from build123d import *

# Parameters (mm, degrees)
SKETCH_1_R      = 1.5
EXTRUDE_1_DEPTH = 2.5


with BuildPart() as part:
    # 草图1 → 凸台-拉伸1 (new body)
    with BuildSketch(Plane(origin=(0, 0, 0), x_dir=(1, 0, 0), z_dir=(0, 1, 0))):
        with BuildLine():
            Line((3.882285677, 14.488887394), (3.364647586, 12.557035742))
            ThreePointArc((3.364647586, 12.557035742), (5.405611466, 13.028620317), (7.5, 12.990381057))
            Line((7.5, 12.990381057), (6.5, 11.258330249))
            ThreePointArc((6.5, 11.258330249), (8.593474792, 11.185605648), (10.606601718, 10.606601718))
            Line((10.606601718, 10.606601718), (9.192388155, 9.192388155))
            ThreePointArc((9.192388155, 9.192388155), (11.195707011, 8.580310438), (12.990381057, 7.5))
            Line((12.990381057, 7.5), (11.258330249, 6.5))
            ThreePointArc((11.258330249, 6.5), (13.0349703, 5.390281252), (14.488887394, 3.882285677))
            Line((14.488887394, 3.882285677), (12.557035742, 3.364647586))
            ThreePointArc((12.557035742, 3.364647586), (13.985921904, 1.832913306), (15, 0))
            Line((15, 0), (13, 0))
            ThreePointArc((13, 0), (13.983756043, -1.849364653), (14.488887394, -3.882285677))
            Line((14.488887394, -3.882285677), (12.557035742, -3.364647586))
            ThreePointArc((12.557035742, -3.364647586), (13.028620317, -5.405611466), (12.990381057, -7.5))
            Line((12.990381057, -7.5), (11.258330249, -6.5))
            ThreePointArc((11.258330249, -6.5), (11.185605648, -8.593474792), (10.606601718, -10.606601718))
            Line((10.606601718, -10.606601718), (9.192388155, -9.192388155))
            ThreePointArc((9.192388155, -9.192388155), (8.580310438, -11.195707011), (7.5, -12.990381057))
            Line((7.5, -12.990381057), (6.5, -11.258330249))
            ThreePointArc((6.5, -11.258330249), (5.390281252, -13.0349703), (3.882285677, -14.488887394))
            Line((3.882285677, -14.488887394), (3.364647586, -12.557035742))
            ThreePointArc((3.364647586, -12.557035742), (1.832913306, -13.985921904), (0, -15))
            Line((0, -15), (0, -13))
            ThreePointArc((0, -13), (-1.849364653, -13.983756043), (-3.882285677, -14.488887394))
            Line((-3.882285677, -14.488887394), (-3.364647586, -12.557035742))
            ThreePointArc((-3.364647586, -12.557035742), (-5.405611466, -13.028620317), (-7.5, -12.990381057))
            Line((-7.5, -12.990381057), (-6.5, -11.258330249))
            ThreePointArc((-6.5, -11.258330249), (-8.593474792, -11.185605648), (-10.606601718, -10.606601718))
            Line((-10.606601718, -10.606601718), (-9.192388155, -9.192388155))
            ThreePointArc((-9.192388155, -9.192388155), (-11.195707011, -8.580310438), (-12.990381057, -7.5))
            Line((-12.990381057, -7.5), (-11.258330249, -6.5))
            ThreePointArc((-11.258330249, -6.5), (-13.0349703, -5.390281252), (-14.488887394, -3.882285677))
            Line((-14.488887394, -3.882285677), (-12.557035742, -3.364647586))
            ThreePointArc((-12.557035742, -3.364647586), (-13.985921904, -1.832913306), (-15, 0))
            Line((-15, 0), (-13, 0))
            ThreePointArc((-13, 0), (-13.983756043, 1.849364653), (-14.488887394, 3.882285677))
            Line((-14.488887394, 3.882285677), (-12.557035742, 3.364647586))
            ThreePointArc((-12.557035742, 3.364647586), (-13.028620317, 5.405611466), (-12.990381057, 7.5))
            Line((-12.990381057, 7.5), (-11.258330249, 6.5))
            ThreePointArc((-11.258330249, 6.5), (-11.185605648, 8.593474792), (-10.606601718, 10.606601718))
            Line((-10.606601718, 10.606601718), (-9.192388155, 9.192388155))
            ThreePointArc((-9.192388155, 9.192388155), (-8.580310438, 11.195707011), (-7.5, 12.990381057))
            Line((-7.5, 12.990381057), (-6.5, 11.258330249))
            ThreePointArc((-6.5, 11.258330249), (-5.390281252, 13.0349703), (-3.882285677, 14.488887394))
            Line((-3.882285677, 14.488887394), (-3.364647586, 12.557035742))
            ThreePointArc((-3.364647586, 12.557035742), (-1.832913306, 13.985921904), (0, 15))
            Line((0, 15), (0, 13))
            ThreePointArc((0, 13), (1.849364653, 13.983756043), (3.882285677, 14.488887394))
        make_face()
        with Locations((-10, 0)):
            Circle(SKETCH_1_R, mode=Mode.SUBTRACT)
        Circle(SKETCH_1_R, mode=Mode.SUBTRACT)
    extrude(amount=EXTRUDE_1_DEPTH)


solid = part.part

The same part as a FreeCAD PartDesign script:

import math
import FreeCAD as App
import Part
import Sketcher

V = App.Vector
Q = App.Units.Quantity

doc = App.newDocument("Part")
body = doc.addObject("PartDesign::Body", "Body")

sketch1 = body.newObject("Sketcher::SketchObject", "Sketch")
sketch1.AttachmentSupport = (doc.getObject("XZ_Plane"), [""])
sketch1.MapMode = "FlatFace"
sketch1.addGeometry([
    Part.LineSegment(V(3.364648, -12.557036, 0), V(3.882286, -14.488887, 0)),
    Part.ArcOfCircle(Part.Circle(V(4.91447, -5.991469, 0), V(0, 0, 1), 8.559879), math.radians(-125.038622), math.radians(-96.925809)),
    Part.LineSegment(V(0, -13, 0), V(0, -15, 0)),
    Part.ArcOfCircle(Part.Circle(V(3.196307, -7.059273, 0), V(0, 0, 1), 8.559879), math.radians(-140.038622), math.radians(-111.925809)),
    Part.LineSegment(V(-3.364648, -12.557036, 0), V(-3.882286, -14.488887, 0)),
    Part.ArcOfCircle(Part.Circle(V(1.260322, -7.645999, 0), V(0, 0, 1), 8.559879), math.radians(-155.038622), math.radians(-126.925809)),
    Part.LineSegment(V(-6.5, -11.25833, 0), V(-7.5, -12.990381, 0)),
    Part.ArcOfCircle(Part.Circle(V(-0.761553, -7.711664, 0), V(0, 0, 1), 8.559879), math.radians(-170.038622), math.radians(-141.925809)),
    Part.LineSegment(V(-9.192388, -9.192388, 0), V(-10.606602, -10.606602, 0)),
    Part.ArcOfCircle(Part.Circle(V(-2.731529, -7.251791, 0), V(0, 0, 1), 8.559879), math.radians(174.961378), math.radians(203.074191)),
    Part.LineSegment(V(-11.25833, -6.5, 0), V(-12.990381, -7.5, 0)),
    Part.ArcOfCircle(Part.Circle(V(-4.515356, -6.29772, 0), V(0, 0, 1), 8.559879), math.radians(159.961378), math.radians(188.074191)),
    Part.LineSegment(V(-12.557036, -3.364648, 0), V(-14.488887, -3.882286, 0)),
    Part.ArcOfCircle(Part.Circle(V(-5.991469, -4.91447, 0), V(0, 0, 1), 8.559879), math.radians(144.961378), math.radians(173.074191)),
    Part.LineSegment(V(-13, 0, 0), V(-15, 0, 0)),
    Part.ArcOfCircle(Part.Circle(V(-7.059273, -3.196307, 0), V(0, 0, 1), 8.559879), math.radians(129.961378), math.radians(158.074191)),
    Part.LineSegment(V(-12.557036, 3.364648, 0), V(-14.488887, 3.882286, 0)),
    Part.ArcOfCircle(Part.Circle(V(-7.645999, -1.260322, 0), V(0, 0, 1), 8.559879), math.radians(114.961378), math.radians(143.074191)),
    Part.LineSegment(V(-11.25833, 6.5, 0), V(-12.990381, 7.5, 0)),
    Part.ArcOfCircle(Part.Circle(V(-7.711664, 0.761553, 0), V(0, 0, 1), 8.559879), math.radians(99.961378), math.radians(128.074191)),
    Part.LineSegment(V(-9.192388, 9.192388, 0), V(-10.606602, 10.606602, 0)),
    Part.ArcOfCircle(Part.Circle(V(-7.251791, 2.731529, 0), V(0, 0, 1), 8.559879), math.radians(84.961378), math.radians(113.074191)),
    Part.LineSegment(V(-6.5, 11.25833, 0), V(-7.5, 12.990381, 0)),
    Part.ArcOfCircle(Part.Circle(V(-6.29772, 4.515356, 0), V(0, 0, 1), 8.559879), math.radians(69.961378), math.radians(98.074191)),
    Part.LineSegment(V(-3.364648, 12.557036, 0), V(-3.882286, 14.488887, 0)),
    Part.ArcOfCircle(Part.Circle(V(-4.91447, 5.991469, 0), V(0, 0, 1), 8.559879), math.radians(54.961378), math.radians(83.074191)),
    Part.LineSegment(V(0, 13, 0), V(0, 15, 0)),
    Part.ArcOfCircle(Part.Circle(V(-3.196307, 7.059273, 0), V(0, 0, 1), 8.559879), math.radians(39.961378), math.radians(68.074191)),
    Part.LineSegment(V(3.364648, 12.557036, 0), V(3.882286, 14.488887, 0)),
    Part.ArcOfCircle(Part.Circle(V(-1.260322, 7.645999, 0), V(0, 0, 1), 8.559879), math.radians(24.961378), math.radians(53.074191)),
    Part.LineSegment(V(6.5, 11.25833, 0), V(7.5, 12.990381, 0)),
    Part.ArcOfCircle(Part.Circle(V(0.761553, 7.711664, 0), V(0, 0, 1), 8.559879), math.radians(9.961378), math.radians(38.074191)),
    Part.LineSegment(V(9.192388, 9.192388, 0), V(10.606602, 10.606602, 0)),
    Part.ArcOfCircle(Part.Circle(V(2.731529, 7.251791, 0), V(0, 0, 1), 8.559879), math.radians(-5.038622), math.radians(23.074191)),
    Part.LineSegment(V(11.25833, 6.5, 0), V(12.990381, 7.5, 0)),
    Part.ArcOfCircle(Part.Circle(V(4.515356, 6.29772, 0), V(0, 0, 1), 8.559879), math.radians(-20.038622), math.radians(8.074191)),
    Part.LineSegment(V(12.557036, 3.364648, 0), V(14.488887, 3.882286, 0)),
    Part.ArcOfCircle(Part.Circle(V(5.991469, 4.91447, 0), V(0, 0, 1), 8.559879), math.radians(-35.038622), math.radians(-6.925809)),
    Part.LineSegment(V(13, 0, 0), V(15, 0, 0)),
    Part.ArcOfCircle(Part.Circle(V(7.059273, 3.196307, 0), V(0, 0, 1), 8.559879), math.radians(-50.038622), math.radians(-21.925809)),
    Part.LineSegment(V(12.557036, -3.364648, 0), V(14.488887, -3.882286, 0)),
    Part.ArcOfCircle(Part.Circle(V(7.645999, 1.260322, 0), V(0, 0, 1), 8.559879), math.radians(-65.038622), math.radians(-36.925809)),
    Part.LineSegment(V(11.25833, -6.5, 0), V(12.990381, -7.5, 0)),
    Part.ArcOfCircle(Part.Circle(V(7.711664, -0.761553, 0), V(0, 0, 1), 8.559879), math.radians(-80.038622), math.radians(-51.925809)),
    Part.LineSegment(V(9.192388, -9.192388, 0), V(10.606602, -10.606602, 0)),
    Part.ArcOfCircle(Part.Circle(V(7.251791, -2.731529, 0), V(0, 0, 1), 8.559879), math.radians(-95.038622), math.radians(-66.925809)),
    Part.LineSegment(V(6.5, -11.25833, 0), V(7.5, -12.990381, 0)),
    Part.ArcOfCircle(Part.Circle(V(6.29772, -4.515356, 0), V(0, 0, 1), 8.559879), math.radians(-110.038622), math.radians(-81.925809)),
    Part.Circle(V(0, 0, 0), V(0, 0, 1), 1.5),
    Part.Circle(V(-10, 0, 0), V(0, 0, 1), 1.5),
], False)
sketch1.addConstraint([
    Sketcher.Constraint("Coincident", 0, 2, 1, 2),
    Sketcher.Constraint("Coincident", 1, 1, 2, 1),
    Sketcher.Constraint("Coincident", 2, 2, 3, 2),
    Sketcher.Constraint("Coincident", 3, 1, 4, 1),
    Sketcher.Constraint("Coincident", 4, 2, 5, 2),
    Sketcher.Constraint("Coincident", 5, 1, 6, 1),
    Sketcher.Constraint("Coincident", 6, 2, 7, 2),
    Sketcher.Constraint("Coincident", 7, 1, 8, 1),
    Sketcher.Constraint("Coincident", 8, 2, 9, 2),
    Sketcher.Constraint("Coincident", 9, 1, 10, 1),
    Sketcher.Constraint("Coincident", 10, 2, 11, 2),
    Sketcher.Constraint("Coincident", 11, 1, 12, 1),
    Sketcher.Constraint("Coincident", 12, 2, 13, 2),
    Sketcher.Constraint("Coincident", 13, 1, 14, 1),
    Sketcher.Constraint("Coincident", 14, 2, 15, 2),
    Sketcher.Constraint("Coincident", 15, 1, 16, 1),
    Sketcher.Constraint("Coincident", 16, 2, 17, 2),
    Sketcher.Constraint("Coincident", 17, 1, 18, 1),
    Sketcher.Constraint("Coincident", 18, 2, 19, 2),
    Sketcher.Constraint("Coincident", 19, 1, 20, 1),
    Sketcher.Constraint("Coincident", 20, 2, 21, 2),
    Sketcher.Constraint("Coincident", 21, 1, 22, 1),
    Sketcher.Constraint("Coincident", 22, 2, 23, 2),
    Sketcher.Constraint("Coincident", 23, 1, 24, 1),
    Sketcher.Constraint("Coincident", 24, 2, 25, 2),
    Sketcher.Constraint("Coincident", 25, 1, 26, 1),
    Sketcher.Constraint("Coincident", 26, 2, 27, 2),
    Sketcher.Constraint("Coincident", 27, 1, 28, 1),
    Sketcher.Constraint("Coincident", 28, 2, 29, 2),
    Sketcher.Constraint("Coincident", 29, 1, 30, 1),
    Sketcher.Constraint("Coincident", 30, 2, 31, 2),
    Sketcher.Constraint("Coincident", 31, 1, 32, 1),
    Sketcher.Constraint("Coincident", 32, 2, 33, 2),
    Sketcher.Constraint("Coincident", 33, 1, 34, 1),
    Sketcher.Constraint("Coincident", 34, 2, 35, 2),
    Sketcher.Constraint("Coincident", 35, 1, 36, 1),
    Sketcher.Constraint("Coincident", 36, 2, 37, 2),
    Sketcher.Constraint("Coincident", 37, 1, 38, 1),
    Sketcher.Constraint("Coincident", 38, 2, 39, 2),
    Sketcher.Constraint("Coincident", 39, 1, 40, 1),
    Sketcher.Constraint("Coincident", 40, 2, 41, 2),
    Sketcher.Constraint("Coincident", 41, 1, 42, 1),
    Sketcher.Constraint("Coincident", 42, 2, 43, 2),
    Sketcher.Constraint("Coincident", 43, 1, 44, 1),
    Sketcher.Constraint("Coincident", 44, 2, 45, 2),
    Sketcher.Constraint("Coincident", 45, 1, 46, 1),
    Sketcher.Constraint("Coincident", 46, 2, 47, 2),
    Sketcher.Constraint("Coincident", 47, 1, 0, 1),
    Sketcher.Constraint("Vertical", 2),
    Sketcher.Constraint("Horizontal", 14),
    Sketcher.Constraint("Vertical", 26),
    Sketcher.Constraint("Horizontal", 38),
    Sketcher.Constraint("Coincident", 48, 3, -1, 1),
    Sketcher.Constraint("Equal", 1, 3),
    Sketcher.Constraint("Equal", 3, 5),
    Sketcher.Constraint("Equal", 5, 7),
    Sketcher.Constraint("Equal", 7, 9),
    Sketcher.Constraint("Equal", 9, 11),
    Sketcher.Constraint("Equal", 11, 13),
    Sketcher.Constraint("Equal", 13, 15),
    Sketcher.Constraint("Equal", 15, 17),
    Sketcher.Constraint("Equal", 17, 19),
    Sketcher.Constraint("Equal", 19, 21),
    Sketcher.Constraint("Equal", 21, 23),
    Sketcher.Constraint("Equal", 23, 25),
    Sketcher.Constraint("Equal", 25, 27),
    Sketcher.Constraint("Equal", 27, 29),
    Sketcher.Constraint("Equal", 29, 31),
    Sketcher.Constraint("Equal", 31, 33),
    Sketcher.Constraint("Equal", 33, 35),
    Sketcher.Constraint("Equal", 35, 37),
    Sketcher.Constraint("Equal", 37, 39),
    Sketcher.Constraint("Equal", 39, 41),
    Sketcher.Constraint("Equal", 41, 43),
    Sketcher.Constraint("Equal", 43, 45),
    Sketcher.Constraint("Equal", 45, 47),
    Sketcher.Constraint("Equal", 48, 49),
    Sketcher.Constraint("Symmetric", 1, 3, 25, 3, -1, 1),
    Sketcher.Constraint("Symmetric", 3, 3, 27, 3, -1, 1),
    Sketcher.Constraint("Symmetric", 5, 3, 29, 3, -1, 1),
    Sketcher.Constraint("Symmetric", 7, 3, 31, 3, -1, 1),
    Sketcher.Constraint("Symmetric", 9, 3, 33, 3, -1, 1),
    Sketcher.Constraint("Symmetric", 11, 3, 35, 3, -1, 1),
    Sketcher.Constraint("Symmetric", 13, 3, 37, 3, -1, 1),
    Sketcher.Constraint("Symmetric", 15, 3, 39, 3, -1, 1),
    Sketcher.Constraint("Symmetric", 17, 3, 41, 3, -1, 1),
    Sketcher.Constraint("Symmetric", 19, 3, 43, 3, -1, 1),
    Sketcher.Constraint("Symmetric", 21, 3, 45, 3, -1, 1),
    Sketcher.Constraint("Symmetric", 23, 3, 47, 3, -1, 1),
    Sketcher.Constraint("Symmetric", 0, 2, 4, 2, -2),
    Sketcher.Constraint("Symmetric", 23, 1, 27, 1, -2),
    Sketcher.Constraint("Symmetric", 24, 2, 28, 2, -2),
    Sketcher.Constraint("Symmetric", 21, 1, 29, 1, -2),
    Sketcher.Constraint("Symmetric", 22, 2, 30, 2, -2),
    Sketcher.Constraint("Symmetric", 19, 1, 31, 1, -2),
    Sketcher.Constraint("Symmetric", 20, 2, 32, 2, -2),
    Sketcher.Constraint("Symmetric", 17, 1, 33, 1, -2),
    Sketcher.Constraint("Symmetric", 18, 2, 34, 2, -2),
    Sketcher.Constraint("Symmetric", 15, 1, 35, 1, -2),
    Sketcher.Constraint("Symmetric", 16, 2, 36, 2, -2),
    Sketcher.Constraint("Symmetric", 13, 1, 37, 1, -2),
    Sketcher.Constraint("Symmetric", 11, 1, 39, 1, -2),
    Sketcher.Constraint("Symmetric", 12, 2, 40, 2, -2),
    Sketcher.Constraint("Symmetric", 9, 1, 41, 1, -2),
    Sketcher.Constraint("Symmetric", 10, 2, 42, 2, -2),
    Sketcher.Constraint("Symmetric", 7, 1, 43, 1, -2),
    Sketcher.Constraint("Symmetric", 8, 2, 44, 2, -2),
    Sketcher.Constraint("Symmetric", 5, 1, 45, 1, -2),
    Sketcher.Constraint("Symmetric", 6, 2, 46, 2, -2),
    Sketcher.Constraint("Symmetric", 3, 1, 47, 1, -2),
    Sketcher.Constraint("Symmetric", 1, 1, 25, 1, -1),
    Sketcher.Constraint("PointOnObject", 49, 3, -1),
    Sketcher.Constraint("Perpendicular", 0, 12),
    Sketcher.Constraint("Perpendicular", 6, 18),
    Sketcher.Constraint("Perpendicular", 8, 20),
    Sketcher.Constraint("Equal", 38, 2),
    Sketcher.Constraint("Equal", 4, 6),
    Sketcher.Constraint("Equal", 6, 8),
    Sketcher.Constraint("Equal", 8, 10),
    Sketcher.Constraint("Equal", 10, 12),
    Sketcher.Constraint("Diameter", 48, 3.0),
    Sketcher.Constraint("DistanceX", 14, 2, 14, 1, 2.0),
    Sketcher.Constraint("Angle", 0, Q("-75 deg")),
    Sketcher.Constraint("Angle", 6, Q("-120 deg")),
    Sketcher.Constraint("Distance", 0, 2.0),
    Sketcher.Constraint("DistanceX", 49, 3, -1, 1, 10.0),
    Sketcher.Constraint("DistanceY", 1, 1, -1, 1, 13.0),
    Sketcher.Constraint("DistanceX", 13, 1, -1, 1, 13.0),
    Sketcher.Constraint("DistanceX", 5, 1, -1, 1, 6.5),
    Sketcher.Constraint("DistanceY", 9, 1, -1, 1, 6.5),
    Sketcher.Constraint("Radius", 1, 8.559879),
    Sketcher.Constraint("DistanceY", 5, 3, -1, 1, 7.645999),
    Sketcher.Constraint("DistanceX", 17, 3, -1, 1, 7.645999),
    Sketcher.Constraint("DistanceX", 8, 2, -1, 1, 10.606602),
    Sketcher.Constraint("DistanceY", 8, 2, -1, 1, 10.606602),
    Sketcher.Constraint("DistanceX", -1, 1, 1, 3, 4.91447),
    Sketcher.Constraint("DistanceX", -1, 1, 5, 3, 1.260322),
    Sketcher.Constraint("DistanceX", 9, 3, -1, 1, 2.731529),
    Sketcher.Constraint("DistanceY", 11, 3, -1, 1, 6.29772),
])
pad1 = body.newObject("PartDesign::Pad", "Pad")
pad1.Profile = sketch1
pad1.Length = 2.5
pad1.Reversed = True

doc.recompute()
